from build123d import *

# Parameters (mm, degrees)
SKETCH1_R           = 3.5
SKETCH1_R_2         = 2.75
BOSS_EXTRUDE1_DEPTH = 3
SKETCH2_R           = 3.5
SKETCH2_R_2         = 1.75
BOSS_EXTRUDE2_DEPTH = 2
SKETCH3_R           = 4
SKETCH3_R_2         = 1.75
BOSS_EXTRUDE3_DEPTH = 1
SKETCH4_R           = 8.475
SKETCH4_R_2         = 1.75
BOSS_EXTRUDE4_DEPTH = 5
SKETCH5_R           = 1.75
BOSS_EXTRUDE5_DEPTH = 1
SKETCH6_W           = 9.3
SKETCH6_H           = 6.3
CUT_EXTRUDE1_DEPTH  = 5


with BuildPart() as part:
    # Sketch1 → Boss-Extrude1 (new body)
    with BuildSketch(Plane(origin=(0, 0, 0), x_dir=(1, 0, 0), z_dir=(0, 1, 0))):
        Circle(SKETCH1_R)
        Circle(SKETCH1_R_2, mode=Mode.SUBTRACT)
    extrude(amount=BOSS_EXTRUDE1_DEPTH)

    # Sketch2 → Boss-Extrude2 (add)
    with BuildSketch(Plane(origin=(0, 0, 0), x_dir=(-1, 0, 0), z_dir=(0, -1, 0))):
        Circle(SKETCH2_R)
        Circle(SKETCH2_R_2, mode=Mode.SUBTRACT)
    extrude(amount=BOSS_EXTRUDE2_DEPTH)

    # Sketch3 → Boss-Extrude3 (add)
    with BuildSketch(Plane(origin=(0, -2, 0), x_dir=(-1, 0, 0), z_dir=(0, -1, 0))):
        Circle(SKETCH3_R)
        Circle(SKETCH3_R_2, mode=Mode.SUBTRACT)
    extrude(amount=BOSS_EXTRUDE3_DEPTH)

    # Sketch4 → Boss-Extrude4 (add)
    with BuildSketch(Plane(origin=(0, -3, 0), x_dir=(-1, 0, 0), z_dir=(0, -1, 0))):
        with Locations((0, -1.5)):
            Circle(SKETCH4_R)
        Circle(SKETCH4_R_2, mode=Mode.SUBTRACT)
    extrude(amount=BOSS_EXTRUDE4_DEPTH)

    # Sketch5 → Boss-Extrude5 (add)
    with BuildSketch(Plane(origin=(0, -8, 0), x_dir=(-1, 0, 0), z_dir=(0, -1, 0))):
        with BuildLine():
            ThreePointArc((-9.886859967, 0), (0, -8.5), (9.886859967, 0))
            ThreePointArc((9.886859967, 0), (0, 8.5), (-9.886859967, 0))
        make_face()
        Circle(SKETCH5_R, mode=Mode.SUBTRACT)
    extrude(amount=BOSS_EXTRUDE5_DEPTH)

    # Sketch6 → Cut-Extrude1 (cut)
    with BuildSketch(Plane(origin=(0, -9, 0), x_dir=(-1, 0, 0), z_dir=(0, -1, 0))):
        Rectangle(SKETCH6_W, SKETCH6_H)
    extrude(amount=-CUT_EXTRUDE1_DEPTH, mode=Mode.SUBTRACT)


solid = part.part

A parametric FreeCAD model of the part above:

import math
import FreeCAD as App
import Part
import Sketcher
Q = App.Units.Quantity


def add_polygon(sketch, points):
    """Adds a closed chain of lines whose ends are joined by coincident constraints."""
    first, n = sketch.GeometryCount, len(points)
    for a, b in zip(points, points[1:] + points[:1]):
        sketch.addGeometry(Part.LineSegment(App.Vector(*a, 0), App.Vector(*b, 0)), False)
    for i in range(n):
        sketch.addConstraint(Sketcher.Constraint("Coincident", first + i, 2, first + (i + 1) % n, 1))

doc = App.newDocument("Part")
body = doc.addObject("PartDesign::Body", "Body")

# Sketch on XZ plane
sketch1 = body.newObject("Sketcher::SketchObject", "Sketch")
sketch1.AttachmentSupport = (doc.getObject("XZ_Plane"), [""])
sketch1.MapMode = "FlatFace"
sketch1.addGeometry(Part.Circle(App.Vector(0, 0, 0), App.Vector(0, 0, 1), 3.5), False)
sketch1.addGeometry(Part.Circle(App.Vector(0, 0, 0), App.Vector(0, 0, 1), 2.8), False)
sketch1.addConstraint(Sketcher.Constraint("Coincident", 0, 3, -1, 1))
sketch1.addConstraint(Sketcher.Constraint("Coincident", 1, 3, -1, 1))
sketch1.addConstraint(Sketcher.Constraint("Diameter", 0, Q("7 mm")))
sketch1.addConstraint(Sketcher.Constraint("Diameter", 1, Q("5.5 mm")))
pad1 = body.newObject("PartDesign::Pad", "Pad")
pad1.Profile = sketch1
pad1.Length = 3
pad1.Reversed = True

# Sketch on XZ plane
sketch2 = body.newObject("Sketcher::SketchObject", "Sketch001")
sketch2.AttachmentSupport = (doc.getObject("XZ_Plane"), [""])
sketch2.MapMode = "FlatFace"
sketch2.addGeometry(Part.Circle(App.Vector(0, 0, 0), App.Vector(0, 0, 1), 3.5), False)
sketch2.addGeometry(Part.Circle(App.Vector(0, 0, 0), App.Vector(0, 0, 1), 1.8), False)
sketch2.addConstraint(Sketcher.Constraint("Coincident", 0, 3, -1, 1))
sketch2.addConstraint(Sketcher.Constraint("Coincident", 1, 3, -1, 1))
sketch2.addConstraint(Sketcher.Constraint("Diameter", 0, Q("7 mm")))
sketch2.addConstraint(Sketcher.Constraint("Diameter", 1, Q("3.5 mm")))
pad2 = body.newObject("PartDesign::Pad", "Pad001")
pad2.Profile = sketch2
pad2.Length = 2

# Sketch on XZ plane
sketch3 = body.newObject("Sketcher::SketchObject", "Sketch002")
sketch3.AttachmentSupport = (doc.getObject("XZ_Plane"), [""])
sketch3.MapMode = "FlatFace"
sketch3.AttachmentOffset = App.Placement(App.Vector(0, 0, 2), App.Rotation())
sketch3.addGeometry(Part.Circle(App.Vector(0, 0, 0), App.Vector(0, 0, 1), 4), False)
sketch3.addGeometry(Part.Circle(App.Vector(0, 0, 0), App.Vector(0, 0, 1), 1.8), False)
sketch3.addConstraint(Sketcher.Constraint("Coincident", 0, 3, -1, 1))
sketch3.addConstraint(Sketcher.Constraint("Coincident", 1, 3, -1, 1))
sketch3.addConstraint(Sketcher.Constraint("Diameter", 0, Q("8 mm")))
sketch3.addConstraint(Sketcher.Constraint("Diameter", 1, Q("3.5 mm")))
pad3 = body.newObject("PartDesign::Pad", "Pad002")
pad3.Profile = sketch3
pad3.Length = 1

# Sketch on XZ plane
sketch4 = body.newObject("Sketcher::SketchObject", "Sketch003")
sketch4.AttachmentSupport = (doc.getObject("XZ_Plane"), [""])
sketch4.MapMode = "FlatFace"
sketch4.AttachmentOffset = App.Placement(App.Vector(0, 0, 3), App.Rotation())
sketch4.addGeometry(Part.Circle(App.Vector(0, 1.5, 0), App.Vector(0, 0, 1), 8.5), False)
sketch4.addGeometry(Part.Circle(App.Vector(0, 0, 0), App.Vector(0, 0, 1), 1.8), False)
sketch4.addConstraint(Sketcher.Constraint("Coincident", 1, 3, -1, 1))
sketch4.addConstraint(Sketcher.Constraint("PointOnObject", 0, 3, -2))
sketch4.addConstraint(Sketcher.Constraint("Diameter", 1, Q("3.5 mm")))
sketch4.addConstraint(Sketcher.Constraint("Diameter", 0, Q("16.95 mm")))
sketch4.addConstraint(Sketcher.Constraint("DistanceY", -1, 1, 0, 3, Q("1.5 mm")))
pad4 = body.newObject("PartDesign::Pad", "Pad003")
pad4.Profile = sketch4
pad4.Length = 5

# Sketch on XZ plane
sketch5 = body.newObject("Sketcher::SketchObject", "Sketch004")
sketch5.AttachmentSupport = (doc.getObject("XZ_Plane"), [""])
sketch5.MapMode = "FlatFace"
sketch5.AttachmentOffset = App.Placement(App.Vector(0, 0, 8), App.Rotation())
sketch5.addGeometry(Part.ArcOfCircle(Part.Circle(App.Vector(0, -1.5, 0), App.Vector(0, 0, 1), 10), math.radians(9), math.radians(171)), False)
sketch5.addGeometry(Part.ArcOfCircle(Part.Circle(App.Vector(0, 1.5, 0), App.Vector(0, 0, 1), 10), math.radians(-171), math.radians(-9)), False)
sketch5.addGeometry(Part.Circle(App.Vector(0, 0, 0), App.Vector(0, 0, 1), 1.8), False)
sketch5.addConstraint(Sketcher.Constraint("Coincident", 0, 1, 1, 2))
sketch5.addConstraint(Sketcher.Constraint("Coincident", 1, 1, 0, 2))
sketch5.addConstraint(Sketcher.Constraint("Coincident", 2, 3, -1, 1))
sketch5.addConstraint(Sketcher.Constraint("Equal", 0, 1))
sketch5.addConstraint(Sketcher.Constraint("Symmetric", 0, 3, 1, 3, -1, 1))
sketch5.addConstraint(Sketcher.Constraint("PointOnObject", 0, 3, -2))
sketch5.addConstraint(Sketcher.Constraint("Radius", 0, Q("10 mm")))
sketch5.addConstraint(Sketcher.Constraint("Diameter", 2, Q("3.5 mm")))
sketch5.addConstraint(Sketcher.Constraint("DistanceY", 0, 3, 1, 3, Q("3 mm")))
pad5 = body.newObject("PartDesign::Pad", "Pad004")
pad5.Profile = sketch5
pad5.Length = 1

# Sketch on XZ plane
sketch6 = body.newObject("Sketcher::SketchObject", "Sketch005")
sketch6.AttachmentSupport = (doc.getObject("XZ_Plane"), [""])
sketch6.MapMode = "FlatFace"
sketch6.AttachmentOffset = App.Placement(App.Vector(0, 0, 9), App.Rotation())
add_polygon(sketch6, [(5, -3), (5, 3), (-5, 3), (-5, -3)])  # lines 0-3
sketch6.addConstraint(Sketcher.Constraint("Vertical", 0))
sketch6.addConstraint(Sketcher.Constraint("Horizontal", 1))
sketch6.addConstraint(Sketcher.Constraint("Vertical", 2))
sketch6.addConstraint(Sketcher.Constraint("Horizontal", 3))
sketch6.addConstraint(Sketcher.Constraint("Symmetric", 0, 2, 2, 2, -1, 1))
sketch6.addConstraint(Sketcher.Constraint("DistanceX", 1, 2, 1, 1, Q("9.3 mm")))
sketch6.addConstraint(Sketcher.Constraint("DistanceY", 0, 1, 0, 2, Q("6.3 mm")))
pocket1 = body.newObject("PartDesign::Pocket", "Pocket")
pocket1.Profile = sketch6
pocket1.Length = 5

doc.recompute()
